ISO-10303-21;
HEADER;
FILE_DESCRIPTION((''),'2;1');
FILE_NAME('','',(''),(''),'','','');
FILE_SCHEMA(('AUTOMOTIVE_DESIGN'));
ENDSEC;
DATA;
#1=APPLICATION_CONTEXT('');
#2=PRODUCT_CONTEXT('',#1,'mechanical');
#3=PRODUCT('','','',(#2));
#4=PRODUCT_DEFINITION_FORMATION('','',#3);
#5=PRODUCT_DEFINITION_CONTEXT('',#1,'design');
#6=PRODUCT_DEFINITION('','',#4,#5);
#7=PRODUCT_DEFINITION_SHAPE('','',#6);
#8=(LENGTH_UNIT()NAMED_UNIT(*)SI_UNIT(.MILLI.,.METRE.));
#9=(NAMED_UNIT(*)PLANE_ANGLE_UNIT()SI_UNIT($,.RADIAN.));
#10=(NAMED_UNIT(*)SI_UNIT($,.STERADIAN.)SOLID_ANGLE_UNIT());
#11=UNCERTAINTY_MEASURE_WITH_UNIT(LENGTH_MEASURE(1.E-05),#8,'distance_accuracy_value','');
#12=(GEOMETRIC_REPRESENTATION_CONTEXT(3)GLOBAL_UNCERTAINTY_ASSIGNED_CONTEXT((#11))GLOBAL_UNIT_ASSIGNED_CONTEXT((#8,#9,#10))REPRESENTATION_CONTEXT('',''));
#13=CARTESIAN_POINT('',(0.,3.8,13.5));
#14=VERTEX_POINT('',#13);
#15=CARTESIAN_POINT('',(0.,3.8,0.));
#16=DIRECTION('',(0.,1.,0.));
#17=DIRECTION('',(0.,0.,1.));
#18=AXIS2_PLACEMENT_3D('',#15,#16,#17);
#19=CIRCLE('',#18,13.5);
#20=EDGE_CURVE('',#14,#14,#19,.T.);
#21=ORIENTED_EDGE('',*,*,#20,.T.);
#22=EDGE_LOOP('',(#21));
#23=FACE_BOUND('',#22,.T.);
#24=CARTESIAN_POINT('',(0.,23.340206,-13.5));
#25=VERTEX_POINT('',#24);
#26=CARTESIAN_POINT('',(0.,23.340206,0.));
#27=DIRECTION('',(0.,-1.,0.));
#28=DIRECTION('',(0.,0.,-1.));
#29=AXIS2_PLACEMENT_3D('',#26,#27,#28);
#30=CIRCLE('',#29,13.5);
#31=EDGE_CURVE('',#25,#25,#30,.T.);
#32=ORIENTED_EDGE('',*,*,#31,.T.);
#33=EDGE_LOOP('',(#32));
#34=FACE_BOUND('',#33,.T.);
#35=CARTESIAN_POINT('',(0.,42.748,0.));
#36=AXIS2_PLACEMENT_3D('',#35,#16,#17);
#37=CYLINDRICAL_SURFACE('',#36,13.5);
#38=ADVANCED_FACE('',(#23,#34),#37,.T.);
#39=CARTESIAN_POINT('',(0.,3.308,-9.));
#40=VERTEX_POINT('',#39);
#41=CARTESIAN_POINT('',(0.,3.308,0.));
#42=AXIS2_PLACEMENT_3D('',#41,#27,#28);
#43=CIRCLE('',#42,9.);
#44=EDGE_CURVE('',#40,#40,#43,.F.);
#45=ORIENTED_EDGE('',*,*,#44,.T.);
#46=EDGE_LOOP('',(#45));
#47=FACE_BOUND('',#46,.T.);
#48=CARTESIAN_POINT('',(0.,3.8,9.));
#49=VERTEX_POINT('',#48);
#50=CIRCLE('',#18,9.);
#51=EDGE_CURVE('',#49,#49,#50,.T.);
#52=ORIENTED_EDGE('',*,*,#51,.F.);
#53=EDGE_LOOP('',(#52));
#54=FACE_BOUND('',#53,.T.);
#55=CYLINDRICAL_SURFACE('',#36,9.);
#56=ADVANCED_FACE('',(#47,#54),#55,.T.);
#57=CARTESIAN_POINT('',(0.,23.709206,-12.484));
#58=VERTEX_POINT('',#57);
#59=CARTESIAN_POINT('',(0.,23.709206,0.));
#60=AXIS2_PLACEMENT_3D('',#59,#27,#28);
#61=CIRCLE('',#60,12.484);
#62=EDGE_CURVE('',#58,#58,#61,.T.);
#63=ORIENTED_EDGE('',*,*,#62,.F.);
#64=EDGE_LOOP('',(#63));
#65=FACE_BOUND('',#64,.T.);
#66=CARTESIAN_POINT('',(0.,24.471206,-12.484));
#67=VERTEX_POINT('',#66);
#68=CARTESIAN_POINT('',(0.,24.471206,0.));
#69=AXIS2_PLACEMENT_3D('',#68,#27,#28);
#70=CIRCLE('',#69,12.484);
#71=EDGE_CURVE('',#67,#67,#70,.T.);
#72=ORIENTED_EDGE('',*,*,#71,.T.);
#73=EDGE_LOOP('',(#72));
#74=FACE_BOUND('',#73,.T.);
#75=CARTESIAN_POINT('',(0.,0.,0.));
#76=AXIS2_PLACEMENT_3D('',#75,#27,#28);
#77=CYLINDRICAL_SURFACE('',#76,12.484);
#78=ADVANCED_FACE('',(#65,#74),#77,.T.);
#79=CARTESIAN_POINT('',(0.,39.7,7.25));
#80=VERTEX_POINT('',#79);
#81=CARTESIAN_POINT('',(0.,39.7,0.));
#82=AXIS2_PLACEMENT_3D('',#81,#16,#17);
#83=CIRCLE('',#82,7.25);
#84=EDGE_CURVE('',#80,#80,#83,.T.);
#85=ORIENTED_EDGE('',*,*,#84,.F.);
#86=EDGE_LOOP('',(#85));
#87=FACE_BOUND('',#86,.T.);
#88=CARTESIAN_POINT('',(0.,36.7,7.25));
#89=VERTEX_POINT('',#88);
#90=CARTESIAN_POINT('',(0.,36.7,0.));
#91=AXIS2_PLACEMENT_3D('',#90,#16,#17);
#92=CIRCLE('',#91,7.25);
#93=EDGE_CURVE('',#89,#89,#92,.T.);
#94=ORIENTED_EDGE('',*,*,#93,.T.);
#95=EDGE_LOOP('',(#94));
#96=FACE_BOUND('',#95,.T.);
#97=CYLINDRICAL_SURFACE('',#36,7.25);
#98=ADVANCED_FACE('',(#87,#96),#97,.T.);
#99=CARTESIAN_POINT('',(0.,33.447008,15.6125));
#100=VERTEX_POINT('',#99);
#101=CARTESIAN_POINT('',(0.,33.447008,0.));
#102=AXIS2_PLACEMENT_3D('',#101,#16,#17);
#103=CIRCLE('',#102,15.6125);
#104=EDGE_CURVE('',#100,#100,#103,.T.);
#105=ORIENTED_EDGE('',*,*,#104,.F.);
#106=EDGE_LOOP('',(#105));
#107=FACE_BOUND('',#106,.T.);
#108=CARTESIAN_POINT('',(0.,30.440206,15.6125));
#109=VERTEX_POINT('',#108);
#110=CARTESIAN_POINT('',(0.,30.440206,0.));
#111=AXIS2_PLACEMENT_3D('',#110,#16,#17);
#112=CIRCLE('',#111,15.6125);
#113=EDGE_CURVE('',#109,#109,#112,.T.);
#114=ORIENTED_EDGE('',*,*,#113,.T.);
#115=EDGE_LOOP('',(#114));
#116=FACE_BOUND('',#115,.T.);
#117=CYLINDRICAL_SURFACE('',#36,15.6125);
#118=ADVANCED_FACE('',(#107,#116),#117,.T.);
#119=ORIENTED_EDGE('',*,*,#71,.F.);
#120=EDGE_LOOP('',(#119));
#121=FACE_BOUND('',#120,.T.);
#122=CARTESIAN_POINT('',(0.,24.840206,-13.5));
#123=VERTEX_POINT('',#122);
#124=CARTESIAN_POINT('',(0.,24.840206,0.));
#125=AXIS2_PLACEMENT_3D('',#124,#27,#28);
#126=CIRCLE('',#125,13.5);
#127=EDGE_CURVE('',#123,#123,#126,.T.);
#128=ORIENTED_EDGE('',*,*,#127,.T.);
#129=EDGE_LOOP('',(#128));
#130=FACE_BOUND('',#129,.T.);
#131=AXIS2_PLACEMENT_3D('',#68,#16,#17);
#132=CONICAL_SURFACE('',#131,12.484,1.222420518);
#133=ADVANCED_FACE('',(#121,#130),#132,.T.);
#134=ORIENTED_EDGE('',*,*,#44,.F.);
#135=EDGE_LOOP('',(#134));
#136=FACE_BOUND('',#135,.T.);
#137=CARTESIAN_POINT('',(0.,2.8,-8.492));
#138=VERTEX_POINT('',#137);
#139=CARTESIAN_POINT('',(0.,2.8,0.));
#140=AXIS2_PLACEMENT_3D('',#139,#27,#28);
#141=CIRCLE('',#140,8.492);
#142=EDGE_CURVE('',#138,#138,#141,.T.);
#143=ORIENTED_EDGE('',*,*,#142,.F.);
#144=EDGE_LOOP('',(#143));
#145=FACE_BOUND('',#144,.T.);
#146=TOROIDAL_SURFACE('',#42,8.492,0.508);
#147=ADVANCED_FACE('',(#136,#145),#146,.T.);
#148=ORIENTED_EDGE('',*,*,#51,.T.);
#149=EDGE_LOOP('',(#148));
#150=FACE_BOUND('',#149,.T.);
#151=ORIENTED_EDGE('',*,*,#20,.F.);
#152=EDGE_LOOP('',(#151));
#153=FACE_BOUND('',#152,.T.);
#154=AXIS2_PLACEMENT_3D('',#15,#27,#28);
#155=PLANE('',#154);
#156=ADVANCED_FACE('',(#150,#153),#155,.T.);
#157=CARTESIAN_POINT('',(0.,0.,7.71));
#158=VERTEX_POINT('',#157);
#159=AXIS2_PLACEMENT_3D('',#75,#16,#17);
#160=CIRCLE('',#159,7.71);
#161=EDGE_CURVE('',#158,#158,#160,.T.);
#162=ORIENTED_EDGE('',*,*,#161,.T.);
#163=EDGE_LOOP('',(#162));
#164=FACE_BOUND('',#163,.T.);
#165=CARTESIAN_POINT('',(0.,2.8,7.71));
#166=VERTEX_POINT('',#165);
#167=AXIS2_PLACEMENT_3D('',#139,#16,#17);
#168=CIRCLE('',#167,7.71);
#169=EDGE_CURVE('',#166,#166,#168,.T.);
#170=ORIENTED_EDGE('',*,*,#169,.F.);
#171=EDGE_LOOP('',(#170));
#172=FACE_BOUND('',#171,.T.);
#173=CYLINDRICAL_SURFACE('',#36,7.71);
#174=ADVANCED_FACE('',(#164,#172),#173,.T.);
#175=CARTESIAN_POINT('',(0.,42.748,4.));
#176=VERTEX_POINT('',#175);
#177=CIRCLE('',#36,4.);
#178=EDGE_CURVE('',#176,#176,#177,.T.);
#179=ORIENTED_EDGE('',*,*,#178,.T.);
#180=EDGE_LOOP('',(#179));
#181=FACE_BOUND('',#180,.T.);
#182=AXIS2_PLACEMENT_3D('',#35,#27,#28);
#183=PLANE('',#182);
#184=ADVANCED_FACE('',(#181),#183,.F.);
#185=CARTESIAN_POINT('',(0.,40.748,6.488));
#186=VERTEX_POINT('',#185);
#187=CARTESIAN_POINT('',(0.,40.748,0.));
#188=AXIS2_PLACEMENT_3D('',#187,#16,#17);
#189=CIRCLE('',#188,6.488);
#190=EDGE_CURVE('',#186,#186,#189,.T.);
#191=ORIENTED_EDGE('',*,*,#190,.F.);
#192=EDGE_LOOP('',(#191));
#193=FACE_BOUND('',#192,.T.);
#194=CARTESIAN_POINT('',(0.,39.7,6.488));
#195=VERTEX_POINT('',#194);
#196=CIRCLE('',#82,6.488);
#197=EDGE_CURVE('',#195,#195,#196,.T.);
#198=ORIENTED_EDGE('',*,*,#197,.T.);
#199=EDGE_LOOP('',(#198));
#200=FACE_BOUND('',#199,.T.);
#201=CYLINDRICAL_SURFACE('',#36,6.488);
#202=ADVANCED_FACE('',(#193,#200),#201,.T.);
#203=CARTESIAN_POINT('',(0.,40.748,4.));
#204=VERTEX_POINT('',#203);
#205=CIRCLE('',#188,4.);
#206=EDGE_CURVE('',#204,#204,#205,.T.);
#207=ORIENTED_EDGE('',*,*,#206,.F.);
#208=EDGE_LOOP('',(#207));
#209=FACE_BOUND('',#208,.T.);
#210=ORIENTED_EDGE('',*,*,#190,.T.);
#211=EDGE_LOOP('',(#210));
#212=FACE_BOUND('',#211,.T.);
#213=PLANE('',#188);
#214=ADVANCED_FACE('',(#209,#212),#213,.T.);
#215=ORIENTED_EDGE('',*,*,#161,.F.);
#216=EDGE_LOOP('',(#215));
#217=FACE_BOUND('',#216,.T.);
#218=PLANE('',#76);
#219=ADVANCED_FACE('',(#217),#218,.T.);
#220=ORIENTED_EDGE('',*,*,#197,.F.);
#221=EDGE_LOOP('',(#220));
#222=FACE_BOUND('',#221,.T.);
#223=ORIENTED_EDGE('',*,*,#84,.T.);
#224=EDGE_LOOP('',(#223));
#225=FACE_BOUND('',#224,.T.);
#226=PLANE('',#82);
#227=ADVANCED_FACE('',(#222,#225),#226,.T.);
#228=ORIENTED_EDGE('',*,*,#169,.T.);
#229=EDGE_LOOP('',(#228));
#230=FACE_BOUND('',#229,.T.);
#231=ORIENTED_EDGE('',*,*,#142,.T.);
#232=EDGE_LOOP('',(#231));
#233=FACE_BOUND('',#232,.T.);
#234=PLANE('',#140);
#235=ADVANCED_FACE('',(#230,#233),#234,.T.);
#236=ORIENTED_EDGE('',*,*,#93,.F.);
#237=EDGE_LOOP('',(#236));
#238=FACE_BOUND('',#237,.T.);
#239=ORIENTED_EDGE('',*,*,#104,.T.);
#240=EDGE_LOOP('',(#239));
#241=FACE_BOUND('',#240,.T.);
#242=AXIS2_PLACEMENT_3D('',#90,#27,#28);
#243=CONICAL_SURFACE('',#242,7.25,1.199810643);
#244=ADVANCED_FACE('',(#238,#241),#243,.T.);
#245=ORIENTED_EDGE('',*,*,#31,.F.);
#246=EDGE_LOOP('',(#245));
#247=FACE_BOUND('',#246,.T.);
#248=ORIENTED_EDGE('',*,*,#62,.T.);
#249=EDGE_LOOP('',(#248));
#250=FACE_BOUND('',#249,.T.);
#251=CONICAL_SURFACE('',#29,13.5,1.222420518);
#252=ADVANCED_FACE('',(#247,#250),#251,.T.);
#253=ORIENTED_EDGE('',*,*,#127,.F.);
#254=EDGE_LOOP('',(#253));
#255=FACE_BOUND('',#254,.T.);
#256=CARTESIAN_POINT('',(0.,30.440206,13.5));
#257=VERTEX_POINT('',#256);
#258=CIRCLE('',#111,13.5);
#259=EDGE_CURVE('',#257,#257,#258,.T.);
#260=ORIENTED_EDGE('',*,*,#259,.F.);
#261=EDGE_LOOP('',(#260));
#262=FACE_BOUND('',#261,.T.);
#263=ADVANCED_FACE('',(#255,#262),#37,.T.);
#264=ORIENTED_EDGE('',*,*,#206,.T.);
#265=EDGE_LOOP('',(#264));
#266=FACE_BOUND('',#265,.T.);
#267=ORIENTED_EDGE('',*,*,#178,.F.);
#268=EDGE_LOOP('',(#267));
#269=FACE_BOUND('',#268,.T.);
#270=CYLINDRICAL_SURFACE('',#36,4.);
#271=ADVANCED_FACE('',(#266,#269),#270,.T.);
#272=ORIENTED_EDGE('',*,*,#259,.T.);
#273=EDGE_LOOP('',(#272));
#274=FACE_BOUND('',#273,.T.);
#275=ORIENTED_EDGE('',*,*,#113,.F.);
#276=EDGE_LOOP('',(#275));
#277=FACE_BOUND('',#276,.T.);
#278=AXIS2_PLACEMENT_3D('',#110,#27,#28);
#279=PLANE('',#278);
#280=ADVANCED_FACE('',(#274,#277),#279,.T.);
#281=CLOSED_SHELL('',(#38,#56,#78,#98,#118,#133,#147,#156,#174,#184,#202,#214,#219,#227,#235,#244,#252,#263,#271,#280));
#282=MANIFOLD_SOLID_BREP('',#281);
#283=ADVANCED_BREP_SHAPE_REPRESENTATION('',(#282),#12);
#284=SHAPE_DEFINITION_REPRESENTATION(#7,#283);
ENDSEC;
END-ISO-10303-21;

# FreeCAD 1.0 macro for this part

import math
import FreeCAD as App
import Part
import Sketcher
from FreeCAD import Vector


def edges_at(feature, points):
    """Names of the edges that pass closest to the given points."""
    edges = feature.Shape.Edges
    near = lambda p: min(range(len(edges)), key=lambda i: edges[i].distToShape(Part.Vertex(*p))[0])
    return sorted({f"Edge{near(p) + 1}" for p in points})

doc = App.newDocument("Part")
body = doc.addObject("PartDesign::Body", "Body")

# Sketch on XY plane
sketch1 = body.newObject("Sketcher::SketchObject", "Sketch")
sketch1.AttachmentSupport = (doc.getObject("XY_Plane"), [""])
sketch1.MapMode = "FlatFace"
sketch1.addGeometry([
    Part.LineSegment(Vector(7.2, 39.7, 0), Vector(6.5, 39.7, 0)),  # 0
    Part.LineSegment(Vector(6.5, 39.7, 0), Vector(6.5, 40.7, 0)),  # 1
    Part.LineSegment(Vector(6.5, 40.7, 0), Vector(4, 40.7, 0)),  # 2
    Part.LineSegment(Vector(4, 40.7, 0), Vector(4, 42.7, 0)),  # 3
    Part.LineSegment(Vector(4, 42.7, 0), Vector(0, 42.7, 0)),  # 4
    Part.LineSegment(Vector(0, 42.7, 0), Vector(0, 0, 0)),  # 5
    Part.LineSegment(Vector(0, 0, 0), Vector(7.7, 0, 0)),  # 6
    Part.LineSegment(Vector(7.7, 0, 0), Vector(7.7, 2.8, 0)),  # 7
    Part.LineSegment(Vector(7.7, 2.8, 0), Vector(9, 2.8, 0)),  # 8
    Part.LineSegment(Vector(9, 2.8, 0), Vector(9, 3.8, 0)),  # 9
    Part.LineSegment(Vector(9, 3.8, 0), Vector(13.5, 3.8, 0)),  # 10
    Part.LineSegment(Vector(13.5, 3.8, 0), Vector(13.5, 30.4, 0)),  # 11
    Part.LineSegment(Vector(13.5, 30.4, 0), Vector(15.6, 30.4, 0)),  # 12
    Part.LineSegment(Vector(15.6, 30.4, 0), Vector(15.6, 33.4, 0)),  # 13
    Part.LineSegment(Vector(15.6, 33.4, 0), Vector(7.2, 36.7, 0)),  # 14
    Part.LineSegment(Vector(7.2, 36.7, 0), Vector(7.2, 39.7, 0)),  # 15
], False)
sketch1.addConstraint([
    Sketcher.Constraint("Coincident", 0, 2, 1, 1),
    Sketcher.Constraint("Coincident", 1, 2, 2, 1),
    Sketcher.Constraint("Coincident", 2, 2, 3, 1),
    Sketcher.Constraint("Coincident", 3, 2, 4, 1),
    Sketcher.Constraint("Coincident", 4, 2, 5, 1),
    Sketcher.Constraint("Coincident", 5, 2, 6, 1),
    Sketcher.Constraint("Coincident", 6, 2, 7, 1),
    Sketcher.Constraint("Coincident", 7, 2, 8, 1),
    Sketcher.Constraint("Coincident", 8, 2, 9, 1),
    Sketcher.Constraint("Coincident", 9, 2, 10, 1),
    Sketcher.Constraint("Coincident", 10, 2, 11, 1),
    Sketcher.Constraint("Coincident", 11, 2, 12, 1),
    Sketcher.Constraint("Coincident", 12, 2, 13, 1),
    Sketcher.Constraint("Coincident", 13, 2, 14, 1),
    Sketcher.Constraint("Coincident", 14, 2, 15, 1),
    Sketcher.Constraint("Coincident", 15, 2, 0, 1),
    Sketcher.Constraint("Horizontal", 0),
    Sketcher.Constraint("Vertical", 1),
    Sketcher.Constraint("Horizontal", 2),
    Sketcher.Constraint("Vertical", 3),
    Sketcher.Constraint("Horizontal", 4),
    Sketcher.Constraint("Vertical", 5),
    Sketcher.Constraint("Horizontal", 6),
    Sketcher.Constraint("Vertical", 7),
    Sketcher.Constraint("Horizontal", 8),
    Sketcher.Constraint("Vertical", 9),
    Sketcher.Constraint("Horizontal", 10),
    Sketcher.Constraint("Vertical", 11),
    Sketcher.Constraint("Horizontal", 12),
    Sketcher.Constraint("Vertical", 13),
    Sketcher.Constraint("Vertical", 15),
    Sketcher.Constraint("Coincident", 5, 2, -1, 1),
    Sketcher.Constraint("DistanceX", 4, 2, 4, 1, 4.0),
    Sketcher.Constraint("DistanceY", 3, 1, 3, 2, 2.0),
    Sketcher.Constraint("DistanceY", 9, 1, 9, 2, 1.0),
    Sketcher.Constraint("DistanceY", 15, 1, 15, 2, 3.0),
    Sketcher.Constraint("DistanceX", 10, 1, 10, 2, 4.5),
    Sketcher.Constraint("DistanceY", 7, 1, 7, 2, 2.8),
    Sketcher.Constraint("DistanceX", -1, 1, 8, 2, 9.0),
    Sketcher.Constraint("DistanceX", 6, 1, 6, 2, 7.71),
    Sketcher.Constraint("DistanceY", -1, 1, 0, 2, 39.7),
    Sketcher.Constraint("DistanceX", 0, 2, 0, 1, 0.762),
    Sketcher.Constraint("DistanceX", 2, 2, 2, 1, 2.488),
    Sketcher.Constraint("DistanceY", 1, 1, 1, 2, 1.048),
    Sketcher.Constraint("DistanceX", 12, 1, 12, 2, 2.1125),
    Sketcher.Constraint("DistanceY", 11, 1, 11, 2, 26.640206),
    Sketcher.Constraint("DistanceY", 13, 1, 13, 2, 3.006802),
])
revolution = body.newObject("PartDesign::Revolution", "Revolution")
revolution.Profile = sketch1
revolution.ReferenceAxis = (sketch1, ["V_Axis"])
revolution.Angle = 360

# Sketch on XY plane
sketch2 = body.newObject("Sketcher::SketchObject", "Sketch001")
sketch2.AttachmentSupport = (doc.getObject("XY_Plane"), [""])
sketch2.MapMode = "FlatFace"
sketch2.addGeometry([
    Part.LineSegment(Vector(-12.5, 24.5, 0), Vector(-13.5, 24.8, 0)),
    Part.ArcOfCircle(Part.Circle(Vector(-13.7, 24.1, 0), Vector(0, 0, 1), 0.8), math.radians(78), math.radians(282)),
    Part.LineSegment(Vector(-13.5, 23.3, 0), Vector(-12.5, 23.7, 0)),
    Part.LineSegment(Vector(-12.5, 23.7, 0), Vector(-12.5, 24.5, 0)),
], False)
sketch2.addConstraint([
    Sketcher.Constraint("Coincident", 0, 2, 1, 1),
    Sketcher.Constraint("Coincident", 1, 2, 2, 1),
    Sketcher.Constraint("Coincident", 2, 2, 3, 1),
    Sketcher.Constraint("Coincident", 3, 2, 0, 1),
    Sketcher.Constraint("Vertical", 3),
    Sketcher.Constraint("Vertical", 0, 2, 1, 2),
    Sketcher.Constraint("Equal", 0, 2),
    Sketcher.Constraint("DistanceX", 0, 2, -1, 1, 13.5),
    Sketcher.Constraint("Radius", 1, 0.767301),
    Sketcher.Constraint("DistanceY", 1, 2, 0, 2, 1.5),
    Sketcher.Constraint("DistanceY", 3, 1, 3, 2, 0.762),
    Sketcher.Constraint("DistanceX", 2, 2, -1, 1, 12.484),
    Sketcher.Constraint("DistanceY", -1, 1, 1, 3, 24.090206),
])
groove = body.newObject("PartDesign::Groove", "Groove")
groove.Profile = sketch2
groove.ReferenceAxis = (sketch2, ["V_Axis"])
groove.Angle = 360
doc.recompute()

fillet = body.newObject("PartDesign::Fillet", "Fillet")
fillet.Base = (groove, edges_at(groove, [(0, 2.8, -9)]))
fillet.Radius = 0.508

doc.recompute()
